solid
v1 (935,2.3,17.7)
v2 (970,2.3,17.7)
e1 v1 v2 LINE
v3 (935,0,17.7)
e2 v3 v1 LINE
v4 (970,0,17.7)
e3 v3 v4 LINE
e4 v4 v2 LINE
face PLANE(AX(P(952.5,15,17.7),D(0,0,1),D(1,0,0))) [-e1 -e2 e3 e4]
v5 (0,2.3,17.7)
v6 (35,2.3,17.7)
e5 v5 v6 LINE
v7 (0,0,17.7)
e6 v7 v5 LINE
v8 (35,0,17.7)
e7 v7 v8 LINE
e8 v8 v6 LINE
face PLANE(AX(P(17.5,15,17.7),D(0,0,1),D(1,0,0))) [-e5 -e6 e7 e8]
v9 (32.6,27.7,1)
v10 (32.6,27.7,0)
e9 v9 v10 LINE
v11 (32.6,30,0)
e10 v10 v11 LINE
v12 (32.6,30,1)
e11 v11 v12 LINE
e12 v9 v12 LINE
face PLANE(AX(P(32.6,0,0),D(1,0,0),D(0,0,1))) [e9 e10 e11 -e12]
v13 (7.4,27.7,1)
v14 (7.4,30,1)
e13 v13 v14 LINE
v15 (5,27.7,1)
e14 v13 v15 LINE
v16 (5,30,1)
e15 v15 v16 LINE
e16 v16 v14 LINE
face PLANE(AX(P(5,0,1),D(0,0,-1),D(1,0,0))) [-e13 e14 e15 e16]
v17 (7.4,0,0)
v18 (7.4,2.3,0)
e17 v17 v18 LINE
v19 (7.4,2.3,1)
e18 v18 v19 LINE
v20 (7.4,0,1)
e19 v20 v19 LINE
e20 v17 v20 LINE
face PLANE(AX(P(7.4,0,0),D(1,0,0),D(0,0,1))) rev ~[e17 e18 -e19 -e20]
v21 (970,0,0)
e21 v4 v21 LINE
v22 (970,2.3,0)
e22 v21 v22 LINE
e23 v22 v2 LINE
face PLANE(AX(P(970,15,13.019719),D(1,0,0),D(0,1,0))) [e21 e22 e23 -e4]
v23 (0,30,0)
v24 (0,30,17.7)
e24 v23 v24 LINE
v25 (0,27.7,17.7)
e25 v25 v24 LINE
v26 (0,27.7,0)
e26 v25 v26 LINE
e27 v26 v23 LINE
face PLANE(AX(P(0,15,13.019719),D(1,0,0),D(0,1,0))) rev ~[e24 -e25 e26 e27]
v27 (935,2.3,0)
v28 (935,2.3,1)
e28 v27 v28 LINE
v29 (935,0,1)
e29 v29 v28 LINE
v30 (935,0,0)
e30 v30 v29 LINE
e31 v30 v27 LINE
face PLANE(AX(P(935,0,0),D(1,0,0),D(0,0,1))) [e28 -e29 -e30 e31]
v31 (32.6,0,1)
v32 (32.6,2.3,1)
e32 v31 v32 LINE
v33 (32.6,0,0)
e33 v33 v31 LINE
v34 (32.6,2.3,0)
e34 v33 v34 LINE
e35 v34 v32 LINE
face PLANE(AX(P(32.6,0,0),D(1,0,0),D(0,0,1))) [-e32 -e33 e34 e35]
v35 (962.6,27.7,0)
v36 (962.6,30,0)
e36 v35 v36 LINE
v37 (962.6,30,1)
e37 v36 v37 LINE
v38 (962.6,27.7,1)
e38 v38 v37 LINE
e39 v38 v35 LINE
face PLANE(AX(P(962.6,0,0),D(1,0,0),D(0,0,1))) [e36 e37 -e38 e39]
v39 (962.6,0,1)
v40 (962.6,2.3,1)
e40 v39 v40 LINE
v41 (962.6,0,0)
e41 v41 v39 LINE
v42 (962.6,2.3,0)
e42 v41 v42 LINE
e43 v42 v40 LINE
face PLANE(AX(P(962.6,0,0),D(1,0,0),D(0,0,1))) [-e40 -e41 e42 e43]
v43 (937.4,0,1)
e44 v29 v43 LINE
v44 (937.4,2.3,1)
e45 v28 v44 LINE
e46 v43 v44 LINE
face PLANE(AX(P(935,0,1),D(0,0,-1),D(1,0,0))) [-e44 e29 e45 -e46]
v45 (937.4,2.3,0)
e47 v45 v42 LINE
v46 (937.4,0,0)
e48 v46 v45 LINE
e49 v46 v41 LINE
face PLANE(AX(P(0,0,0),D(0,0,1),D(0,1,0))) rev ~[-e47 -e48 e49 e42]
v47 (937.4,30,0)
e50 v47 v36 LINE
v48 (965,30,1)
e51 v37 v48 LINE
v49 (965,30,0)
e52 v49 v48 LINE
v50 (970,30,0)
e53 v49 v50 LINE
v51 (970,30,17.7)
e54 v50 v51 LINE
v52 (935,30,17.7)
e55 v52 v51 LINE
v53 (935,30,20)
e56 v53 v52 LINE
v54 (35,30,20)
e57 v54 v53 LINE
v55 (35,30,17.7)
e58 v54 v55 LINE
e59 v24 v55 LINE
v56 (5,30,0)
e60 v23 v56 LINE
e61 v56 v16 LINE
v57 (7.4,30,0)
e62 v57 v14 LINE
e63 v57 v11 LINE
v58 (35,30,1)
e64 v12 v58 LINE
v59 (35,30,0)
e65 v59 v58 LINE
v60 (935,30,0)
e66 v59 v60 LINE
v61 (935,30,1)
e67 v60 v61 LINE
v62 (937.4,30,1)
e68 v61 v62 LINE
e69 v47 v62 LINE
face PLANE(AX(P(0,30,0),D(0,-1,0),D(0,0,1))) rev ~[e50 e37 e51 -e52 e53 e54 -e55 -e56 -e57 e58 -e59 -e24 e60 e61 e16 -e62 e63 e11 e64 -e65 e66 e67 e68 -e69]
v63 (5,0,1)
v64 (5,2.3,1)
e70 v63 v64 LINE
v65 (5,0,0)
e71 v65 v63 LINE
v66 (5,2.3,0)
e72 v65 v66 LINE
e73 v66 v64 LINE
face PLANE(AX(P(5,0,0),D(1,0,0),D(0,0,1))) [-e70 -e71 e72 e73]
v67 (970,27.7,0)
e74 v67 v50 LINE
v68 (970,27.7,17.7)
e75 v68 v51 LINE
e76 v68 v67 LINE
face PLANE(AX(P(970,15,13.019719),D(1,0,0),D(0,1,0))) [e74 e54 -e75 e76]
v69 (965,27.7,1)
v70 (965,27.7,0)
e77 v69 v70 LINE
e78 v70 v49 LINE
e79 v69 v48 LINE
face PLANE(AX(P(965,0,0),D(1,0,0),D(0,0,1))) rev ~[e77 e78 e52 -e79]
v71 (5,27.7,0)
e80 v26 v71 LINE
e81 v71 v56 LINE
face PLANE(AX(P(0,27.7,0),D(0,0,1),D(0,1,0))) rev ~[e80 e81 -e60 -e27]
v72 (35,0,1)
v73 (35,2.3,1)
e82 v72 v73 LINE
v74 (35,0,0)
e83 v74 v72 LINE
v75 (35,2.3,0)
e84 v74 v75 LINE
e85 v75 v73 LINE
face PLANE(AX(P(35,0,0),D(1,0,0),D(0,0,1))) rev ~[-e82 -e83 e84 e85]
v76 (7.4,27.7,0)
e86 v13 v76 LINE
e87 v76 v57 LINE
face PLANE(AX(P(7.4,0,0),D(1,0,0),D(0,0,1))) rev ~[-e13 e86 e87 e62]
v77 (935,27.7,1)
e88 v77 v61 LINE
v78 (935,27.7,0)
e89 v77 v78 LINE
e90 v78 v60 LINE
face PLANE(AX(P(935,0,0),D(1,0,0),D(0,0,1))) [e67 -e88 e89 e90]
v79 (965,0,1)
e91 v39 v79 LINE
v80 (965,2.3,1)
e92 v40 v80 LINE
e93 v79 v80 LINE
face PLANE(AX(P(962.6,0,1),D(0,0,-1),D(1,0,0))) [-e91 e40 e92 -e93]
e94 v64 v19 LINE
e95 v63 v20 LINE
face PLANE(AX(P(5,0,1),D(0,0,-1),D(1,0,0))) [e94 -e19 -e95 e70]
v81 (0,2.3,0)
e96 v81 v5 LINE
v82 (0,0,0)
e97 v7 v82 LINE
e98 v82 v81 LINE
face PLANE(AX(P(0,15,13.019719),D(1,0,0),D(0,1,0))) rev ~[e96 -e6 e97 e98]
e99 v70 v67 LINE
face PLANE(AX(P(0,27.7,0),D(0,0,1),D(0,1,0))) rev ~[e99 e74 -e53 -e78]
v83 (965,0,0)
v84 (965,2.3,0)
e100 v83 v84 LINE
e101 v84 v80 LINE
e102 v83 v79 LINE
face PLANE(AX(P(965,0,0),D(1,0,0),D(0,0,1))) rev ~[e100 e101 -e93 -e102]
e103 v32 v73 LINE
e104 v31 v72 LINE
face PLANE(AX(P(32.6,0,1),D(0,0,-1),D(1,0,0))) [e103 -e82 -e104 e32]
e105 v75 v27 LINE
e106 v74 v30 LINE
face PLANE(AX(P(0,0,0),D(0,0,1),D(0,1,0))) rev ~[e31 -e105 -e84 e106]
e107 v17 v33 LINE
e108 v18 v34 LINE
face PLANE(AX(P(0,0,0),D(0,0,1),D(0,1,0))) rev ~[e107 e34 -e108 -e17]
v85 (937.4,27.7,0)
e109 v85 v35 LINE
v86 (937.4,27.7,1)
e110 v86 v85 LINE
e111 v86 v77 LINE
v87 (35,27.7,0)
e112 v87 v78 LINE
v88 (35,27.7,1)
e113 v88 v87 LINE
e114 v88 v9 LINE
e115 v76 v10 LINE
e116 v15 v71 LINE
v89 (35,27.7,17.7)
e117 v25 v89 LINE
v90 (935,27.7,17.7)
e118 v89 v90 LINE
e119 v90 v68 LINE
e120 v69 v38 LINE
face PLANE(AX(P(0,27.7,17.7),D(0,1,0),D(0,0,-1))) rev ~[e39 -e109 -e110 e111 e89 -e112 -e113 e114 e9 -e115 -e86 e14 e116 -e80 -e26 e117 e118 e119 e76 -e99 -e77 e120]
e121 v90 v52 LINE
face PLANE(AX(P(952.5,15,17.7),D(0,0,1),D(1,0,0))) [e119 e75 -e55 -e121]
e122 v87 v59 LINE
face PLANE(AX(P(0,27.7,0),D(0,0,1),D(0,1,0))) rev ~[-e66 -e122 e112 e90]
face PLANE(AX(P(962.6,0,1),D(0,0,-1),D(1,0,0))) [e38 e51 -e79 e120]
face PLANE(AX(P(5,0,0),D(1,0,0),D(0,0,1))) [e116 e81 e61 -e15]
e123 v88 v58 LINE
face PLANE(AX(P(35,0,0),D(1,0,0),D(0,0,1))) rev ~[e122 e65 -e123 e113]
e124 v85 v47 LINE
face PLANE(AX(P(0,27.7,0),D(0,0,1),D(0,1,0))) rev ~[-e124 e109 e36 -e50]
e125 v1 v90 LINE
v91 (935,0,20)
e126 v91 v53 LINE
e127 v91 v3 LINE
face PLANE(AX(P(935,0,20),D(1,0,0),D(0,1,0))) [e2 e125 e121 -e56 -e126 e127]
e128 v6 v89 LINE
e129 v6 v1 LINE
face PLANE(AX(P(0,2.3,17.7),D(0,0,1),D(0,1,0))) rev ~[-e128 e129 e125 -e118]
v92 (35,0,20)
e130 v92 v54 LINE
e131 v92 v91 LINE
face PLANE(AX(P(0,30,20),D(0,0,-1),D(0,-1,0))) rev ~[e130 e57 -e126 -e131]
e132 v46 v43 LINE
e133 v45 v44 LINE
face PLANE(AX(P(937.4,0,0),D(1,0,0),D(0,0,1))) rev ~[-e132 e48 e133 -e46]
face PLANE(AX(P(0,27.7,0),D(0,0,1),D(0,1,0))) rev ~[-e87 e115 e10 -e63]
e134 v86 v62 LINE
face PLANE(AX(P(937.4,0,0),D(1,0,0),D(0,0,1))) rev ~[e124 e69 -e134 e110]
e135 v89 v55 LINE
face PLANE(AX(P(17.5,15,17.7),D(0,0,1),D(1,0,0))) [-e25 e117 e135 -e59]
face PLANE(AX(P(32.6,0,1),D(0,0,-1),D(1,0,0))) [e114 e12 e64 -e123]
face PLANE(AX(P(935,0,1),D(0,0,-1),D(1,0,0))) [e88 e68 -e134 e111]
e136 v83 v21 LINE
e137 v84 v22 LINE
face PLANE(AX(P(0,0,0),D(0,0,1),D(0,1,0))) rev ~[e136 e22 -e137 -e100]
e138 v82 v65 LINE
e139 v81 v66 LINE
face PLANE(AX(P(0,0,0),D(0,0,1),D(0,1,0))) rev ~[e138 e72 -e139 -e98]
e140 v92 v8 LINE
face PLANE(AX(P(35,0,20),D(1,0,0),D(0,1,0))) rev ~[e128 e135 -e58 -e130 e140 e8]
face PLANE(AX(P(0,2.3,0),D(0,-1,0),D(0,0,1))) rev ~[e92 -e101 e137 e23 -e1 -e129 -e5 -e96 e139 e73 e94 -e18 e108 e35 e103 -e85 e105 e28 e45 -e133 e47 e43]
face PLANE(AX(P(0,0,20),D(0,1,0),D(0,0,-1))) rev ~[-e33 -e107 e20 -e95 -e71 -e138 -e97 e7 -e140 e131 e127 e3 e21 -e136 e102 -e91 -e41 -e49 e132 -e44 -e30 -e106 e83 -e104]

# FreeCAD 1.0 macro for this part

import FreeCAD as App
import Part
import Sketcher
from FreeCAD import Vector


def add_polygon(sketch, points):
    """Adds a closed chain of lines whose ends are joined by coincident constraints."""
    first, n = sketch.GeometryCount, len(points)
    for a, b in zip(points, points[1:] + points[:1]):
        sketch.addGeometry(Part.LineSegment(App.Vector(*a, 0), App.Vector(*b, 0)), False)
    for i in range(n):
        sketch.addConstraint(Sketcher.Constraint("Coincident", first + i, 2, first + (i + 1) % n, 1))

doc = App.newDocument("Part")
params = doc.addObject("Spreadsheet::Sheet", "Params")
for row, (alias, value) in enumerate([
    ("sketch1_width", "30 mm"),
    ("sketch1_height", "20 mm"),
    ("sketch1_width2", "2.3 mm"),
    ("sketch1_height2", "17.7 mm"),
    ("pad1_length", "970 mm"),
    ("sketch2_width", "35 mm"),
    ("sketch2_height", "30 mm"),
    ("pocket1_length", "2.3 mm"),
    ("sketch3_height", "1 mm"),
    ("sketch3_width", "2.4 mm"),
], start=1):
    params.set(f"A{row}", alias)
    params.set(f"B{row}", "=" + value)
    params.setAlias(f"B{row}", alias)

body = doc.addObject("PartDesign::Body", "Body")

sketch1 = body.newObject("Sketcher::SketchObject", "Sketch")
sketch1.AttachmentSupport = (doc.getObject("YZ_Plane"), [""])
sketch1.MapMode = "FlatFace"
add_polygon(sketch1, [(0, 20), (0, 0), (2.3, 0), (2.3, 17.7), (27.7, 17.7), (27.7, 0), (30, 0), (30, 20)])
sketch1.addConstraint([
    Sketcher.Constraint("Vertical", 0),
    Sketcher.Constraint("Horizontal", 1),
    Sketcher.Constraint("Vertical", 2),
    Sketcher.Constraint("Horizontal", 3),
    Sketcher.Constraint("Vertical", 4),
    Sketcher.Constraint("Horizontal", 5),
    Sketcher.Constraint("Vertical", 6),
    Sketcher.Constraint("Horizontal", 7),
    Sketcher.Constraint("Coincident", 0, 2, -1, 1),
    Sketcher.Constraint("PointOnObject", 4, 2, -1),
    Sketcher.Constraint("Equal", 1, 5),
    Sketcher.Constraint("DistanceX", 7, 2, 7, 1, 30.0),
    Sketcher.Constraint("DistanceY", 0, 2, 0, 1, 20.0),
    Sketcher.Constraint("DistanceX", 1, 1, 1, 2, 2.3),
    Sketcher.Constraint("DistanceY", 2, 1, 2, 2, 17.7),
])
sketch1.setExpression("Constraints[19]", "Params.sketch1_width")
sketch1.setExpression("Constraints[20]", "Params.sketch1_height")
sketch1.setExpression("Constraints[21]", "Params.sketch1_width2")
sketch1.setExpression("Constraints[22]", "Params.sketch1_height2")
pad1 = body.newObject("PartDesign::Pad", "Pad")
pad1.Profile = sketch1
pad1.setExpression("Length", "Params.pad1_length")

sketch2 = body.newObject("Sketcher::SketchObject", "Sketch001")
sketch2.AttachmentSupport = (doc.getObject("XY_Plane"), [""])
sketch2.MapMode = "FlatFace"
sketch2.AttachmentOffset = App.Placement(Vector(0, 0, 20), App.Rotation())
add_polygon(sketch2, [(0, 30), (0, 0), (35, 0), (35, 30)])
add_polygon(sketch2, [(935, 30), (935, 0), (970, 0), (970, 30)])
sketch2.addConstraint([
    Sketcher.Constraint("Vertical", 0),
    Sketcher.Constraint("Horizontal", 1),
    Sketcher.Constraint("Vertical", 2),
    Sketcher.Constraint("Horizontal", 3),
    Sketcher.Constraint("Vertical", 4),
    Sketcher.Constraint("Horizontal", 5),
    Sketcher.Constraint("Vertical", 6),
    Sketcher.Constraint("Horizontal", 7),
    Sketcher.Constraint("Coincident", 0, 2, -1, 1),
    Sketcher.Constraint("PointOnObject", 4, 2, -1),
    Sketcher.Constraint("Horizontal", 3, 2, 6, 2),
    Sketcher.Constraint("Equal", 3, 5),
    Sketcher.Constraint("DistanceX", 1, 1, 1, 2, 35.0),
    Sketcher.Constraint("DistanceY", 0, 2, 0, 1, 30.0),
    Sketcher.Constraint("DistanceX", -1, 1, 4, 2, 935.0),
])
sketch2.setExpression("Constraints[20]", "Params.sketch2_width")
sketch2.setExpression("Constraints[21]", "Params.sketch2_height")
pocket1 = body.newObject("PartDesign::Pocket", "Pocket")
pocket1.Profile = sketch2
pocket1.setExpression("Length", "Params.pocket1_length")

sketch3 = body.newObject("Sketcher::SketchObject", "Sketch002")
sketch3.AttachmentSupport = (doc.getObject("XZ_Plane"), [""])
sketch3.MapMode = "FlatFace"
add_polygon(sketch3, [(32.6, 1), (32.6, 0), (35, 0), (35, 1)])
add_polygon(sketch3, [(5, 1), (5, 0), (7.4, 0), (7.4, 1)])
add_polygon(sketch3, [(935, 1), (935, 0), (937.4, 0), (937.4, 1)])
add_polygon(sketch3, [(962.6, 1), (962.6, 0), (965, 0), (965, 1)])
sketch3.addConstraint([
    Sketcher.Constraint("Vertical", 0),
    Sketcher.Constraint("Horizontal", 1),
    Sketcher.Constraint("Vertical", 2),
    Sketcher.Constraint("Horizontal", 3),
    Sketcher.Constraint("Vertical", 4),
    Sketcher.Constraint("Horizontal", 5),
    Sketcher.Constraint("Vertical", 6),
    Sketcher.Constraint("Horizontal", 7),
    Sketcher.Constraint("Vertical", 8),
    Sketcher.Constraint("Horizontal", 9),
    Sketcher.Constraint("Vertical", 10),
    Sketcher.Constraint("Horizontal", 11),
    Sketcher.Constraint("Vertical", 12),
    Sketcher.Constraint("Horizontal", 13),
    Sketcher.Constraint("Vertical", 14),
    Sketcher.Constraint("Horizontal", 15),
    Sketcher.Constraint("PointOnObject", 0, 2, -1),
    Sketcher.Constraint("PointOnObject", 4, 2, -1),
    Sketcher.Constraint("PointOnObject", 8, 2, -1),
    Sketcher.Constraint("PointOnObject", 12, 2, -1),
    Sketcher.Constraint("Horizontal", 3, 2, 6, 2),
    Sketcher.Constraint("Horizontal", 7, 2, 10, 2),
    Sketcher.Constraint("Horizontal", 11, 2, 14, 2),
    Sketcher.Constraint("Equal", 3, 5),
    Sketcher.Constraint("Equal", 7, 9),
    Sketcher.Constraint("Equal", 11, 13),
    Sketcher.Constraint("DistanceY", 0, 2, 0, 1, 1.0),
    Sketcher.Constraint("DistanceX", 1, 1, 1, 2, 2.4),
    Sketcher.Constraint("DistanceX", -1, 1, 1, 2, 35.0),
    Sketcher.Constraint("DistanceX", -1, 1, 4, 2, 5.0),
    Sketcher.Constraint("DistanceX", -1, 1, 8, 2, 935.0),
    Sketcher.Constraint("DistanceX", -1, 1, 13, 2, 965.0),
])
sketch3.setExpression("Constraints[42]", "Params.sketch3_height")
sketch3.setExpression("Constraints[43]", "Params.sketch3_width")
pocket2 = body.newObject("PartDesign::Pocket", "Pocket001")
pocket2.Profile = sketch3
pocket2.Type = "ThroughAll"

doc.recompute()
